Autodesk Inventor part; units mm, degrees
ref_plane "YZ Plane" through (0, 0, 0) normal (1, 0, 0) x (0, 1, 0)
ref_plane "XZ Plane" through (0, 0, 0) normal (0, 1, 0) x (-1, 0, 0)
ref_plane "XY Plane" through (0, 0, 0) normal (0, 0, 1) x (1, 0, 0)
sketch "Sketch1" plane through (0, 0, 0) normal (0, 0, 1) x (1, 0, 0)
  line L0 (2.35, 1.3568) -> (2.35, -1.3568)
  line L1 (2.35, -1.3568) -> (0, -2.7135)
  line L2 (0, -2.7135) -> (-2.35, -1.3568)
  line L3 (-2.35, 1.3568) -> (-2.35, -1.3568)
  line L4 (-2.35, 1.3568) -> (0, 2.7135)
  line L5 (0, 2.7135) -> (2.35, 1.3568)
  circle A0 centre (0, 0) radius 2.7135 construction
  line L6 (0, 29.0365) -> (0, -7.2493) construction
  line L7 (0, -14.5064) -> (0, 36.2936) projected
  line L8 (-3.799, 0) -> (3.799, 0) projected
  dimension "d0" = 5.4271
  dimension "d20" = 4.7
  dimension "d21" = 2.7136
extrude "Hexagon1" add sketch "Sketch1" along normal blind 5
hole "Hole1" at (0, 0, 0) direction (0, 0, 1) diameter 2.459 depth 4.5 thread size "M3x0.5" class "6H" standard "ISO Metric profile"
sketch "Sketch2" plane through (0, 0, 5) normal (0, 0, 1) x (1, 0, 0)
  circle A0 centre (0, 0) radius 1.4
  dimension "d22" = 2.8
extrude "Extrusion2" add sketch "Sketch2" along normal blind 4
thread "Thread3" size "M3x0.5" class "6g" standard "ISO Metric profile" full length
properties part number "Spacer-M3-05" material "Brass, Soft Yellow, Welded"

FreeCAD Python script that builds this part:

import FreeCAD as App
import Part
import Sketcher
Q = App.Units.Quantity


def add_polygon(sketch, points):
    """Adds a closed chain of lines whose ends are joined by coincident constraints."""
    first, n = sketch.GeometryCount, len(points)
    for a, b in zip(points, points[1:] + points[:1]):
        sketch.addGeometry(Part.LineSegment(App.Vector(*a, 0), App.Vector(*b, 0)), False)
    for i in range(n):
        sketch.addConstraint(Sketcher.Constraint("Coincident", first + i, 2, first + (i + 1) % n, 1))

doc = App.newDocument("Part")
body = doc.addObject("PartDesign::Body", "Body")

sketch1 = body.newObject("Sketcher::SketchObject", "Sketch")
sketch1.AttachmentSupport = (doc.getObject("XY_Plane"), [""])
sketch1.MapMode = "FlatFace"
add_polygon(sketch1, [(2.35, 1.3568), (0, 2.7135), (-2.35, 1.3568), (-2.35, -1.3568), (0, -2.7135), (2.35, -1.3568)])
sketch1.addConstraint([
    Sketcher.Constraint("Vertical", 2),
    Sketcher.Constraint("Vertical", 5),
    Sketcher.Constraint("Symmetric", 0, 2, 3, 2, -1, 1),
    Sketcher.Constraint("Symmetric", 1, 2, 4, 2, -1, 1),
    Sketcher.Constraint("PointOnObject", 0, 2, -2),
    Sketcher.Constraint("Parallel", 0, 3),
    Sketcher.Constraint("Horizontal", 2, 2, 4, 2),
    Sketcher.Constraint("DistanceX", 2, 2, 4, 2, Q("4.7 mm")),
    Sketcher.Constraint("DistanceY", 2, 2, 2, 1, Q("2.7136 mm")),
    Sketcher.Constraint("DistanceY", 3, 2, 0, 2, Q("5.427 mm")),
])
pad1 = body.newObject("PartDesign::Pad", "Pad")
pad1.Profile = sketch1
pad1.Length = 5

sketch2 = body.newObject("Sketcher::SketchObject", "Sketch001")
sketch2.AttachmentSupport = (doc.getObject("XY_Plane"), [""])
sketch2.MapMode = "FlatFace"
sketch2.addGeometry(Part.Circle(App.Vector(0, 0, 0), App.Vector(0, 0, 1), 1.2295), False)
sketch2.addConstraint([
    Sketcher.Constraint("Coincident", 0, 3, -1, 1),
    Sketcher.Constraint("Diameter", 0, Q("2.459 mm")),
])
doc.recompute()
hole = body.newObject("PartDesign::Hole", "Hole")
hole.Profile = sketch2
hole.ThreadType = "None"
hole.Diameter = 2.459
hole.DepthType = "Dimension"
hole.Depth = 4.5
hole.DrillPoint = "Flat"
hole.Reversed = True

sketch3 = body.newObject("Sketcher::SketchObject", "Sketch002")
sketch3.AttachmentSupport = (doc.getObject("XY_Plane"), [""])
sketch3.MapMode = "FlatFace"
sketch3.AttachmentOffset = App.Placement(App.Vector(0, 0, 5), App.Rotation())
sketch3.addGeometry(Part.Circle(App.Vector(0, 0, 0), App.Vector(0, 0, 1), 1.4), False)
sketch3.addConstraint([
    Sketcher.Constraint("Coincident", 0, 3, -1, 1),
    Sketcher.Constraint("Diameter", 0, Q("2.8 mm")),
])
pad2 = body.newObject("PartDesign::Pad", "Pad001")
pad2.Profile = sketch3
pad2.Length = 4

doc.recompute()
